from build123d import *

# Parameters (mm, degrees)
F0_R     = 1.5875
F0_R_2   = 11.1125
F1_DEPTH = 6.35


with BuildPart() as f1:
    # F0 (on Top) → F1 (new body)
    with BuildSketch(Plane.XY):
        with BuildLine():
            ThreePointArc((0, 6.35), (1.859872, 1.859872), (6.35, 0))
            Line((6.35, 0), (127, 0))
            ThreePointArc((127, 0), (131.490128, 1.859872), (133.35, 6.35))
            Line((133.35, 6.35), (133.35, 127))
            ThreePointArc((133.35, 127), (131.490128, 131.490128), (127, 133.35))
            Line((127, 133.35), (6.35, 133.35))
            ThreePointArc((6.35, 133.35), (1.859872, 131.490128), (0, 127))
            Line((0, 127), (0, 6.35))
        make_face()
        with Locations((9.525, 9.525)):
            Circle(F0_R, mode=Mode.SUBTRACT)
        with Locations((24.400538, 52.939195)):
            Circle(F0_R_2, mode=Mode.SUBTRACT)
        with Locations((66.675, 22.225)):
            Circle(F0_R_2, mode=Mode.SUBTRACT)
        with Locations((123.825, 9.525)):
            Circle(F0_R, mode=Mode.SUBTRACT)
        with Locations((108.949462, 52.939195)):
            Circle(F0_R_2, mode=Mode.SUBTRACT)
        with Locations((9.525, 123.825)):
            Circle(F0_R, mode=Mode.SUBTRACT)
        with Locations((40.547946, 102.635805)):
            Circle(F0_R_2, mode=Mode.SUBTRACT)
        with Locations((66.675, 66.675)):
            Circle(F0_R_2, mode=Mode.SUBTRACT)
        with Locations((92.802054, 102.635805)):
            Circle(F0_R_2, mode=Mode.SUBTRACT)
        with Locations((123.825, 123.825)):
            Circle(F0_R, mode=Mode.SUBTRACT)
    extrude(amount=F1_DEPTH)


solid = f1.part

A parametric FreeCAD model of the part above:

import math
import FreeCAD as App
import Part
import Sketcher

V = App.Vector
Q = App.Units.Quantity

doc = App.newDocument("Part")
params = doc.addObject("Spreadsheet::Sheet", "Params")
for row, (alias, value) in enumerate([
    ("sketch1_radius", "0.25 in"),
    ("sketch1_diameter", "0.125 in"),
    ("sketch1_diameter2", "0.875 in"),
    ("pad1_length", "0.25 in"),
], start=1):
    params.set(f"A{row}", alias)
    params.set(f"B{row}", "=" + value)
    params.setAlias(f"B{row}", alias)

body = doc.addObject("PartDesign::Body", "Body")

# Sketch on XY plane
sketch1 = doc.addObject("Sketcher::SketchObject", "Sketch")
body.addObject(sketch1)
sketch1.AttachmentSupport = (doc.XY_Plane, [""])
sketch1.MapMode = "FlatFace"
sketch1.addGeometry([
    Part.ArcOfCircle(Part.Circle(V(6.35, 6.35, 0), V(0, 0, 1), 6.35), math.radians(-179.999998), math.radians(-90.000002)),  # 0
    Part.LineSegment(V(6.35, 0, 0), V(127, 0, 0)),  # 1
    Part.ArcOfCircle(Part.Circle(V(127, 6.35, 0), V(0, 0, 1), 6.35), math.radians(-89.999998), math.radians(-0.000002)),  # 2
    Part.LineSegment(V(133.35, 6.35, 0), V(133.35, 127, 0)),  # 3
    Part.ArcOfCircle(Part.Circle(V(127, 127, 0), V(0, 0, 1), 6.35), math.radians(0.000002), math.radians(89.999998)),  # 4
    Part.LineSegment(V(127, 133.35, 0), V(6.35, 133.35, 0)),  # 5
    Part.ArcOfCircle(Part.Circle(V(6.35, 127, 0), V(0, 0, 1), 6.35), math.radians(90.000002), math.radians(179.999998)),  # 6
    Part.LineSegment(V(0, 127, 0), V(0, 6.35, 0)),  # 7
    Part.Circle(V(9.525, 9.525, 0), V(0, 0, 1), 1.5875),  # 8
    Part.Circle(V(66.675, 22.225, 0), V(0, 0, 1), 11.1125),  # 9
    Part.Circle(V(24.400538, 52.939195, 0), V(0, 0, 1), 11.1125),  # 10
    Part.Circle(V(66.675, 66.675, 0), V(0, 0, 1), 11.1125),  # 11
    Part.Circle(V(123.825, 9.525, 0), V(0, 0, 1), 1.5875),  # 12
    Part.Circle(V(108.949462, 52.939195, 0), V(0, 0, 1), 11.1125),  # 13
    Part.Circle(V(9.525, 123.825, 0), V(0, 0, 1), 1.5875),  # 14
    Part.Circle(V(40.547946, 102.635805, 0), V(0, 0, 1), 11.1125),  # 15
    Part.Circle(V(92.802054, 102.635805, 0), V(0, 0, 1), 11.1125),  # 16
    Part.Circle(V(123.825, 123.825, 0), V(0, 0, 1), 1.5875),  # 17
], False)
sketch1.addConstraint([
    Sketcher.Constraint("Tangent", 0, 2, 1, 1),
    Sketcher.Constraint("Tangent", 1, 2, 2, 1),
    Sketcher.Constraint("Tangent", 2, 2, 3, 1),
    Sketcher.Constraint("Tangent", 3, 2, 4, 1),
    Sketcher.Constraint("Tangent", 4, 2, 5, 1),
    Sketcher.Constraint("Tangent", 5, 2, 6, 1),
    Sketcher.Constraint("Tangent", 6, 2, 7, 1),
    Sketcher.Constraint("Tangent", 7, 2, 0, 1),
    Sketcher.Constraint("Horizontal", 1),
    Sketcher.Constraint("Vertical", 3),
    Sketcher.Constraint("Horizontal", 5),
    Sketcher.Constraint("Vertical", 7),
    Sketcher.Constraint("Equal", 0, 2),
    Sketcher.Constraint("Equal", 2, 4),
    Sketcher.Constraint("Equal", 4, 6),
    Sketcher.Constraint("Equal", 9, 10),
    Sketcher.Constraint("Equal", 10, 11),
    Sketcher.Constraint("Equal", 8, 12),
    Sketcher.Constraint("Equal", 11, 13),
    Sketcher.Constraint("Equal", 12, 14),
    Sketcher.Constraint("Equal", 13, 15),
    Sketcher.Constraint("Equal", 15, 16),
    Sketcher.Constraint("Equal", 14, 17),
    Sketcher.Constraint("PointOnObject", 0, 2, -1),
    Sketcher.Constraint("PointOnObject", 6, 2, -2),
    Sketcher.Constraint("Horizontal", 8, 3, 12, 3),
    Sketcher.Constraint("Horizontal", 10, 3, 13, 3),
    Sketcher.Constraint("Horizontal", 15, 3, 16, 3),
    Sketcher.Constraint("Horizontal", 14, 3, 17, 3),
    Sketcher.Constraint("Vertical", 9, 3, 11, 3),
    Sketcher.Constraint("Vertical", 8, 3, 14, 3),
    Sketcher.Constraint("Vertical", 12, 3, 17, 3),
    Sketcher.Constraint("Equal", 5, 3),
    Sketcher.Constraint("Radius", 0, Q("0.25 in")),
    Sketcher.Constraint("Diameter", 8, Q("0.125 in")),
    Sketcher.Constraint("Diameter", 9, Q("0.875 in")),
    Sketcher.Constraint("DistanceX", -1, 1, 2, 3, Q("5 in")),
    Sketcher.Constraint("DistanceY", 9, 3, 14, 3, Q("4 in")),
    Sketcher.Constraint("DistanceY", 8, 3, 9, 3, Q("0.5 in")),
    Sketcher.Constraint("DistanceX", 8, 3, 12, 3, Q("4.5 in")),
    Sketcher.Constraint("DistanceX", 8, 3, 9, 3, Q("2.25 in")),
    Sketcher.Constraint("DistanceY", 9, 3, 11, 3, Q("1.75 in")),
    Sketcher.Constraint("DistanceX", -1, 1, 8, 3, Q("0.375 in")),
    Sketcher.Constraint("DistanceY", -1, 1, 8, 3, Q("0.375 in")),
    Sketcher.Constraint("DistanceX", -1, 1, 10, 3, 24.400538),
    Sketcher.Constraint("DistanceX", -1, 1, 13, 3, 108.949462),
    Sketcher.Constraint("DistanceX", 10, 3, 15, 3, 16.147408),
    Sketcher.Constraint("DistanceY", 10, 3, 15, 3, 49.69661),
    Sketcher.Constraint("DistanceY", -1, 1, 10, 3, 52.939195),
    Sketcher.Constraint("DistanceX", -1, 1, 16, 3, 92.802054),
])
sketch1.setExpression("Constraints[33]", "Params.sketch1_radius")
sketch1.setExpression("Constraints[34]", "Params.sketch1_diameter")
sketch1.setExpression("Constraints[35]", "Params.sketch1_diameter2")
pad1 = doc.addObject("PartDesign::Pad", "Pad")
body.addObject(pad1)
pad1.Profile = sketch1
pad1.setExpression("Length", "Params.pad1_length")

doc.recompute()
